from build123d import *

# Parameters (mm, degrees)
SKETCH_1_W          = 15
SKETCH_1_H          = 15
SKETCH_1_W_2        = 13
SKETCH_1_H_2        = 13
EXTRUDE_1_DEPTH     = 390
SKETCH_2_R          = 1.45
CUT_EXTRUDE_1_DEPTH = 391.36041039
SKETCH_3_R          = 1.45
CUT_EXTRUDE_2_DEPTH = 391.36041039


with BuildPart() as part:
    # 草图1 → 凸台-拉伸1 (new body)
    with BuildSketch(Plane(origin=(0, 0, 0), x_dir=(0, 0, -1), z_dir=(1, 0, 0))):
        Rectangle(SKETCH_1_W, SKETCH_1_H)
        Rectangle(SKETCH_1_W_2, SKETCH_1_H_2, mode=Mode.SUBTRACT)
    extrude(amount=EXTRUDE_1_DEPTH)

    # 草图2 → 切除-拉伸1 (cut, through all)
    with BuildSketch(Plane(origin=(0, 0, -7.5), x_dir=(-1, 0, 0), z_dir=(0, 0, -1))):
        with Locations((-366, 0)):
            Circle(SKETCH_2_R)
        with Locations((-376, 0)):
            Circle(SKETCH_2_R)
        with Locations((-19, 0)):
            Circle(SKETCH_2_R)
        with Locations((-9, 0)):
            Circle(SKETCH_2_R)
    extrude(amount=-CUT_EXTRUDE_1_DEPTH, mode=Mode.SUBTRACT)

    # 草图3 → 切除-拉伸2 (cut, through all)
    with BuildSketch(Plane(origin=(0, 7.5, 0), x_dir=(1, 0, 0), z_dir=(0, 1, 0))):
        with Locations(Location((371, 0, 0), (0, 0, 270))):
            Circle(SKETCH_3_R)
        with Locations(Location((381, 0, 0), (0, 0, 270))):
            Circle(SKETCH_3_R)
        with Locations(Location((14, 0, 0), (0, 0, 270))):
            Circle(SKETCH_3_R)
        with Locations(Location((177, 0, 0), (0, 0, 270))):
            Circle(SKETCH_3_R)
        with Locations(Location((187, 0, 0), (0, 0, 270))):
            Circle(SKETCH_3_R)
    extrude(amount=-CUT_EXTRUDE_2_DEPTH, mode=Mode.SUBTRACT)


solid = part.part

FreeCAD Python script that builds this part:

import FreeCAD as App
import Part
import Sketcher

V = App.Vector
Q = App.Units.Quantity

doc = App.newDocument("Part")
body = doc.addObject("PartDesign::Body", "Body")

# Sketch on YZ plane
sketch1 = doc.addObject("Sketcher::SketchObject", "Sketch")
body.addObject(sketch1)
sketch1.AttachmentSupport = (doc.YZ_Plane, [""])
sketch1.MapMode = "FlatFace"
sketch1.addGeometry([
    Part.LineSegment(V(8, 8, 0), V(-8, 8, 0)),  # 0
    Part.LineSegment(V(-8, 8, 0), V(-8, -8, 0)),  # 1
    Part.LineSegment(V(-8, -8, 0), V(8, -8, 0)),  # 2
    Part.LineSegment(V(8, -8, 0), V(8, 8, 0)),  # 3
    Part.LineSegment(V(-6, -6, 0), V(-6, 6, 0)),  # 4
    Part.LineSegment(V(-6, 6, 0), V(6, 6, 0)),  # 5
    Part.LineSegment(V(6, 6, 0), V(6, -6, 0)),  # 6
    Part.LineSegment(V(6, -6, 0), V(-6, -6, 0)),  # 7
], False)
sketch1.addConstraint([
    Sketcher.Constraint("Coincident", 0, 2, 1, 1),
    Sketcher.Constraint("Coincident", 1, 2, 2, 1),
    Sketcher.Constraint("Coincident", 2, 2, 3, 1),
    Sketcher.Constraint("Coincident", 3, 2, 0, 1),
    Sketcher.Constraint("Coincident", 4, 2, 5, 1),
    Sketcher.Constraint("Coincident", 5, 2, 6, 1),
    Sketcher.Constraint("Coincident", 6, 2, 7, 1),
    Sketcher.Constraint("Coincident", 7, 2, 4, 1),
    Sketcher.Constraint("Horizontal", 0),
    Sketcher.Constraint("Vertical", 1),
    Sketcher.Constraint("Horizontal", 2),
    Sketcher.Constraint("Vertical", 3),
    Sketcher.Constraint("Vertical", 4),
    Sketcher.Constraint("Horizontal", 5),
    Sketcher.Constraint("Vertical", 6),
    Sketcher.Constraint("Horizontal", 7),
    Sketcher.Constraint("Symmetric", 0, 2, 2, 2, -1, 1),
    Sketcher.Constraint("Symmetric", 4, 2, 6, 2, -1, 1),
    Sketcher.Constraint("Equal", 2, 1),
    Sketcher.Constraint("Equal", 7, 4),
    Sketcher.Constraint("DistanceX", 0, 2, 0, 1, Q("15 mm")),
    Sketcher.Constraint("DistanceX", 5, 1, 5, 2, Q("13 mm")),
])
pad1 = doc.addObject("PartDesign::Pad", "Pad")
body.addObject(pad1)
pad1.Profile = sketch1
pad1.Length = 390

# Sketch on XY plane
sketch2 = doc.addObject("Sketcher::SketchObject", "Sketch001")
body.addObject(sketch2)
sketch2.AttachmentSupport = (doc.XY_Plane, [""])
sketch2.MapMode = "FlatFace"
sketch2.AttachmentOffset = App.Placement(V(0, 0, -7.5), App.Rotation())
sketch2.addGeometry([
    Part.Circle(V(366, 0, 0), V(0, 0, 1), 1.4),
    Part.Circle(V(376, 0, 0), V(0, 0, 1), 1.4),
    Part.Circle(V(19, 0, 0), V(0, 0, 1), 1.4),
    Part.Circle(V(9, 0, 0), V(0, 0, 1), 1.4),
], False)
sketch2.addConstraint([
    Sketcher.Constraint("Equal", 0, 1),
    Sketcher.Constraint("Equal", 1, 2),
    Sketcher.Constraint("Equal", 2, 3),
    Sketcher.Constraint("PointOnObject", 0, 3, -1),
    Sketcher.Constraint("PointOnObject", 1, 3, -1),
    Sketcher.Constraint("PointOnObject", 2, 3, -1),
    Sketcher.Constraint("PointOnObject", 3, 3, -1),
    Sketcher.Constraint("Diameter", 0, Q("2.9 mm")),
    Sketcher.Constraint("DistanceX", -1, 1, 0, 3, Q("366 mm")),
    Sketcher.Constraint("DistanceX", -1, 1, 1, 3, Q("376 mm")),
    Sketcher.Constraint("DistanceX", -1, 1, 2, 3, Q("19 mm")),
    Sketcher.Constraint("DistanceX", -1, 1, 3, 3, Q("9 mm")),
])
pocket1 = doc.addObject("PartDesign::Pocket", "Pocket")
body.addObject(pocket1)
pocket1.Profile = sketch2
pocket1.Type = "ThroughAll"
pocket1.Reversed = True

# Sketch on XZ plane
sketch3 = doc.addObject("Sketcher::SketchObject", "Sketch002")
body.addObject(sketch3)
sketch3.AttachmentSupport = (doc.XZ_Plane, [""])
sketch3.MapMode = "FlatFace"
sketch3.AttachmentOffset = App.Placement(V(0, 0, -7.5), App.Rotation())
sketch3.addGeometry([
    Part.Circle(V(371, 0, 0), V(0, 0, 1), 1.4),  # 0
    Part.Circle(V(381, 0, 0), V(0, 0, 1), 1.4),  # 1
    Part.Circle(V(14, 0, 0), V(0, 0, 1), 1.4),  # 2
    Part.Circle(V(177, 0, 0), V(0, 0, 1), 1.4),  # 3
    Part.Circle(V(187, 0, 0), V(0, 0, 1), 1.4),  # 4
], False)
sketch3.addConstraint([
    Sketcher.Constraint("Equal", 0, 1),
    Sketcher.Constraint("Equal", 1, 2),
    Sketcher.Constraint("Equal", 2, 3),
    Sketcher.Constraint("Equal", 3, 4),
    Sketcher.Constraint("PointOnObject", 0, 3, -1),
    Sketcher.Constraint("PointOnObject", 1, 3, -1),
    Sketcher.Constraint("PointOnObject", 2, 3, -1),
    Sketcher.Constraint("PointOnObject", 3, 3, -1),
    Sketcher.Constraint("PointOnObject", 4, 3, -1),
    Sketcher.Constraint("Diameter", 0, Q("2.9 mm")),
    Sketcher.Constraint("DistanceX", -1, 1, 0, 3, Q("371 mm")),
    Sketcher.Constraint("DistanceX", -1, 1, 1, 3, Q("381 mm")),
    Sketcher.Constraint("DistanceX", -1, 1, 2, 3, Q("14 mm")),
    Sketcher.Constraint("DistanceX", -1, 1, 3, 3, Q("177 mm")),
    Sketcher.Constraint("DistanceX", -1, 1, 4, 3, Q("187 mm")),
])
pocket2 = doc.addObject("PartDesign::Pocket", "Pocket001")
body.addObject(pocket2)
pocket2.Profile = sketch3
pocket2.Type = "ThroughAll"
pocket2.Reversed = True

doc.recompute()
